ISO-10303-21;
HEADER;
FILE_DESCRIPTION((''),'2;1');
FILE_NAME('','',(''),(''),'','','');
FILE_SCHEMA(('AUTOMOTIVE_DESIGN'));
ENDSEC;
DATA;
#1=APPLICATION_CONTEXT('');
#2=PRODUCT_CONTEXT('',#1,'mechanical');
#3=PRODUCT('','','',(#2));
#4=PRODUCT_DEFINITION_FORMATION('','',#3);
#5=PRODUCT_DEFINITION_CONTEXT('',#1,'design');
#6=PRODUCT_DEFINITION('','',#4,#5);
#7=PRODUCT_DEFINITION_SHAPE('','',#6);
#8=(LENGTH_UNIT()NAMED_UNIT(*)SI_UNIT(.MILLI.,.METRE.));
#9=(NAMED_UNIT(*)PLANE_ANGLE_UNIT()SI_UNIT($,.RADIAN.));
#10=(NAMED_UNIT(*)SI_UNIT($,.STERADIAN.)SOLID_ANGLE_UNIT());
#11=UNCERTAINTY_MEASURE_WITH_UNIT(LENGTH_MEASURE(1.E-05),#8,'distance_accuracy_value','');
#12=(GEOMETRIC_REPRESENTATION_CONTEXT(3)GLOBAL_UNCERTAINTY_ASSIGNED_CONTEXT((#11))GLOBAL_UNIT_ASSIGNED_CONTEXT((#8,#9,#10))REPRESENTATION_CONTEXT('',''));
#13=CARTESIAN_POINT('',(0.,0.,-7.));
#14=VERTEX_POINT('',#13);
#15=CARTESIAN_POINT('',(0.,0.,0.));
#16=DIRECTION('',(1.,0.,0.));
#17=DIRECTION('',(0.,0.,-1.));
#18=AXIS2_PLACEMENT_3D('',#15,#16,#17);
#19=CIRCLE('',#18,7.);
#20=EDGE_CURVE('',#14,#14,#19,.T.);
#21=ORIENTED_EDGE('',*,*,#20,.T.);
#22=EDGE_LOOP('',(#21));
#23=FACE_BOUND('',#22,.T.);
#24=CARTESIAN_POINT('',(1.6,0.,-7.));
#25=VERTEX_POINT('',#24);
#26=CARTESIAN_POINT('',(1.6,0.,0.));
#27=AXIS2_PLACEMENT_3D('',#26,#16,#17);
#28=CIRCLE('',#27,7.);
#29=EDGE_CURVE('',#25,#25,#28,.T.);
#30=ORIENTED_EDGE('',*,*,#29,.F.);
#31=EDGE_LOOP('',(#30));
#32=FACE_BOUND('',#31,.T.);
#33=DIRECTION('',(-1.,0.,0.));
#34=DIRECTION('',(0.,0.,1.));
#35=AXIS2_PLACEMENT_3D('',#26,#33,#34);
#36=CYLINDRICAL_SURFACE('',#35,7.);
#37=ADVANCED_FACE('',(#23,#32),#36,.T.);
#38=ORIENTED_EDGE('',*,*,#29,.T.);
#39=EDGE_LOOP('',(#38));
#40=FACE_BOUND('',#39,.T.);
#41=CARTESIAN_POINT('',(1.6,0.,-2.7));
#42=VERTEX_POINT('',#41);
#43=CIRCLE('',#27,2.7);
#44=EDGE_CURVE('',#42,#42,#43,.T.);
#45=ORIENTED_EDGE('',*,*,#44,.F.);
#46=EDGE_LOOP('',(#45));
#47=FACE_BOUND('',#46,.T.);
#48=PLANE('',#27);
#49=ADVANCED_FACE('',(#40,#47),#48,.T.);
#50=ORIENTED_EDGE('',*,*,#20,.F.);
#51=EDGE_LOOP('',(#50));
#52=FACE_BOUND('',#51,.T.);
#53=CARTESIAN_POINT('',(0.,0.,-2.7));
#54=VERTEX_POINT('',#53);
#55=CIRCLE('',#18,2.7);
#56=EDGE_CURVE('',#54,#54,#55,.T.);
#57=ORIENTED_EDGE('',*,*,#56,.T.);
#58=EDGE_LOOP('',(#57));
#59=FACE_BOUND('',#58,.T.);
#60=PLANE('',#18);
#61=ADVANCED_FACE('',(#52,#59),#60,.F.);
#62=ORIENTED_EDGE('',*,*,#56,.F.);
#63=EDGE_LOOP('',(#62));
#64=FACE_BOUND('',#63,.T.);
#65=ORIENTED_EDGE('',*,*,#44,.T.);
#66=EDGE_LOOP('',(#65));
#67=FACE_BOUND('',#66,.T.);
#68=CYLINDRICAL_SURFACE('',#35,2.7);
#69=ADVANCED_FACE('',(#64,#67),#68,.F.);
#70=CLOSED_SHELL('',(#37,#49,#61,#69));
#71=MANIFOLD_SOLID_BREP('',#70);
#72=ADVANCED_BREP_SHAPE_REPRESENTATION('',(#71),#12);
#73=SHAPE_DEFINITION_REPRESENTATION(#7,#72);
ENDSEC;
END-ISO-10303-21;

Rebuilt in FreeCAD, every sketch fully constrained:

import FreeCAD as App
import Part
import Sketcher

V = App.Vector
Q = App.Units.Quantity

doc = App.newDocument("Part")
params = doc.addObject("Spreadsheet::Sheet", "Params")
for row, (alias, value) in enumerate([
    ("sketch1_diameter", "14 mm"),
    ("sketch1_diameter2", "5.4 mm"),
    ("pad1_length", "1.6 mm"),
], start=1):
    params.set(f"A{row}", alias)
    params.set(f"B{row}", "=" + value)
    params.setAlias(f"B{row}", alias)

body = doc.addObject("PartDesign::Body", "Body")

sketch1 = body.newObject("Sketcher::SketchObject", "Sketch")
sketch1.AttachmentSupport = (doc.getObject("YZ_Plane"), [""])
sketch1.MapMode = "FlatFace"
sketch1.addGeometry([
    Part.Circle(V(0, 0, 0), V(0, 0, 1), 7),
    Part.Circle(V(0, 0, 0), V(0, 0, 1), 2.7),
], False)
sketch1.addConstraint([
    Sketcher.Constraint("Coincident", 0, 3, -1, 1),
    Sketcher.Constraint("Coincident", 1, 3, -1, 1),
    Sketcher.Constraint("Diameter", 0, Q("14 mm")),
    Sketcher.Constraint("Diameter", 1, Q("5.4 mm")),
])
sketch1.setExpression("Constraints[2]", "Params.sketch1_diameter")
sketch1.setExpression("Constraints[3]", "Params.sketch1_diameter2")
pad1 = body.newObject("PartDesign::Pad", "Pad")
pad1.Profile = sketch1
pad1.setExpression("Length", "Params.pad1_length")

doc.recompute()
